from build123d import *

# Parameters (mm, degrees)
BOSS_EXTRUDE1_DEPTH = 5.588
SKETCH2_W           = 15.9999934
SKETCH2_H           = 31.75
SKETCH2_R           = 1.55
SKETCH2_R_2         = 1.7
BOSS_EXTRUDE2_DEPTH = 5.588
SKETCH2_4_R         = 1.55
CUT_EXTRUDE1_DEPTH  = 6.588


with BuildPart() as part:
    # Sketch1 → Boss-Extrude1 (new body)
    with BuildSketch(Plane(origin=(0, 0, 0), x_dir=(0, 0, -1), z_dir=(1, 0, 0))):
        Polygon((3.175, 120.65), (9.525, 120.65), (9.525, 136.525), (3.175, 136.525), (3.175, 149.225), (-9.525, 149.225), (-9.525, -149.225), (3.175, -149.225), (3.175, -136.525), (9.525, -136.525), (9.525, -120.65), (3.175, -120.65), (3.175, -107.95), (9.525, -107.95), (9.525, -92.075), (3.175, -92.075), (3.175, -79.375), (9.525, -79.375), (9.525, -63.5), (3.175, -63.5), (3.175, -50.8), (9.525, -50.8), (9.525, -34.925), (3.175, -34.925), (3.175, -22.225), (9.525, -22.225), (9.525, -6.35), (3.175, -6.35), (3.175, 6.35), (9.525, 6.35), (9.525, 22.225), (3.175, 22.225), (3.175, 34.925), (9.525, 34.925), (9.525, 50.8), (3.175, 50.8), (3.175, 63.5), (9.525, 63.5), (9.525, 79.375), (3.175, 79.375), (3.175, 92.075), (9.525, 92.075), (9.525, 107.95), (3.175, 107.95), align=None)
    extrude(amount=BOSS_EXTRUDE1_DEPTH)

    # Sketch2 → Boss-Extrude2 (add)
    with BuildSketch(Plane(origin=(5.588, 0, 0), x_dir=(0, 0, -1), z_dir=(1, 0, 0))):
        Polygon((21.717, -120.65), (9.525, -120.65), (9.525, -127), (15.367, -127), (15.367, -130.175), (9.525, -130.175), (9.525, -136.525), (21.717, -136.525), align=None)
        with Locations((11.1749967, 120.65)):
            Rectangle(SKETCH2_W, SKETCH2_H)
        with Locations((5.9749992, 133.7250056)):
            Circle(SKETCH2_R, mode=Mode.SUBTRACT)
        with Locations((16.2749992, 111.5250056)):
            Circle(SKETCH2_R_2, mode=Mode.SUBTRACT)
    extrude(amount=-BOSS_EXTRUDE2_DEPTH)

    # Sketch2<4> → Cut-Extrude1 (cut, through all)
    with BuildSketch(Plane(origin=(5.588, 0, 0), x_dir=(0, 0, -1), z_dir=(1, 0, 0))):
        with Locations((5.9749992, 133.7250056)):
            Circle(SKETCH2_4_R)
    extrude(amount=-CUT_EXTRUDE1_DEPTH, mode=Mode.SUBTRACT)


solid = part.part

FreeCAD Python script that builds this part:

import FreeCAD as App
import Part
import Sketcher
Q = App.Units.Quantity

doc = App.newDocument("Part")
params = doc.addObject("Spreadsheet::Sheet", "Params")
for row, (alias, value) in enumerate([
    ("sketch1_width", "0.5 in"),
    ("sketch1_height", "0.25 in"),
    ("pad1_length", "0.22 in"),
    ("sketch2_width", "0.25 in"),
    ("sketch2_width2", "1.25 in"),
    ("sketch2_height", "0.48 in"),
    ("sketch2_height2", "0.23 in"),
    ("sketch2_width3", "0.125 in"),
    ("pad2_length", "0.22 in"),
], start=1):
    params.set(f"A{row}", alias)
    params.set(f"B{row}", "=" + value)
    params.setAlias(f"B{row}", alias)

body = doc.addObject("PartDesign::Body", "Body")

sketch1 = body.newObject("Sketcher::SketchObject", "Sketch")
sketch1.AttachmentSupport = (doc.getObject("YZ_Plane"), [""])
sketch1.MapMode = "FlatFace"
sketch1.addGeometry(Part.LineSegment(App.Vector(121, -3, 0), App.Vector(121, -10, 0)), False)
sketch1.addGeometry(Part.LineSegment(App.Vector(121, -10, 0), App.Vector(137, -10, 0)), False)
sketch1.addGeometry(Part.LineSegment(App.Vector(137, -10, 0), App.Vector(137, -3, 0)), False)
sketch1.addGeometry(Part.LineSegment(App.Vector(137, -3, 0), App.Vector(149, -3, 0)), False)
sketch1.addGeometry(Part.LineSegment(App.Vector(149, -3, 0), App.Vector(149, 10, 0)), False)
sketch1.addGeometry(Part.LineSegment(App.Vector(149, 10, 0), App.Vector(-149, 10, 0)), False)
sketch1.addGeometry(Part.LineSegment(App.Vector(-149, 10, 0), App.Vector(-149, -3, 0)), False)
sketch1.addGeometry(Part.LineSegment(App.Vector(-149, -3, 0), App.Vector(-137, -3, 0)), False)
sketch1.addGeometry(Part.LineSegment(App.Vector(-137, -3, 0), App.Vector(-137, -10, 0)), False)
sketch1.addGeometry(Part.LineSegment(App.Vector(-137, -10, 0), App.Vector(-121, -10, 0)), False)
sketch1.addGeometry(Part.LineSegment(App.Vector(-121, -10, 0), App.Vector(-121, -3, 0)), False)
sketch1.addGeometry(Part.LineSegment(App.Vector(-121, -3, 0), App.Vector(-108, -3, 0)), False)
sketch1.addGeometry(Part.LineSegment(App.Vector(-108, -3, 0), App.Vector(-108, -10, 0)), False)
sketch1.addGeometry(Part.LineSegment(App.Vector(-108, -10, 0), App.Vector(-92, -10, 0)), False)
sketch1.addGeometry(Part.LineSegment(App.Vector(-92, -10, 0), App.Vector(-92, -3, 0)), False)
sketch1.addGeometry(Part.LineSegment(App.Vector(-92, -3, 0), App.Vector(-79, -3, 0)), False)
sketch1.addGeometry(Part.LineSegment(App.Vector(-79, -3, 0), App.Vector(-79, -10, 0)), False)
sketch1.addGeometry(Part.LineSegment(App.Vector(-79, -10, 0), App.Vector(-64, -10, 0)), False)
sketch1.addGeometry(Part.LineSegment(App.Vector(-64, -10, 0), App.Vector(-64, -3, 0)), False)
sketch1.addGeometry(Part.LineSegment(App.Vector(-64, -3, 0), App.Vector(-51, -3, 0)), False)
sketch1.addGeometry(Part.LineSegment(App.Vector(-51, -3, 0), App.Vector(-51, -10, 0)), False)
sketch1.addGeometry(Part.LineSegment(App.Vector(-51, -10, 0), App.Vector(-35, -10, 0)), False)
sketch1.addGeometry(Part.LineSegment(App.Vector(-35, -10, 0), App.Vector(-35, -3, 0)), False)
sketch1.addGeometry(Part.LineSegment(App.Vector(-35, -3, 0), App.Vector(-22, -3, 0)), False)
sketch1.addGeometry(Part.LineSegment(App.Vector(-22, -3, 0), App.Vector(-22, -10, 0)), False)
sketch1.addGeometry(Part.LineSegment(App.Vector(-22, -10, 0), App.Vector(-6, -10, 0)), False)
sketch1.addGeometry(Part.LineSegment(App.Vector(-6, -10, 0), App.Vector(-6, -3, 0)), False)
sketch1.addGeometry(Part.LineSegment(App.Vector(-6, -3, 0), App.Vector(6, -3, 0)), False)
sketch1.addGeometry(Part.LineSegment(App.Vector(6, -3, 0), App.Vector(6, -10, 0)), False)
sketch1.addGeometry(Part.LineSegment(App.Vector(6, -10, 0), App.Vector(22, -10, 0)), False)
sketch1.addGeometry(Part.LineSegment(App.Vector(22, -10, 0), App.Vector(22, -3, 0)), False)
sketch1.addGeometry(Part.LineSegment(App.Vector(22, -3, 0), App.Vector(35, -3, 0)), False)
sketch1.addGeometry(Part.LineSegment(App.Vector(35, -3, 0), App.Vector(35, -10, 0)), False)
sketch1.addGeometry(Part.LineSegment(App.Vector(35, -10, 0), App.Vector(51, -10, 0)), False)
sketch1.addGeometry(Part.LineSegment(App.Vector(51, -10, 0), App.Vector(51, -3, 0)), False)
sketch1.addGeometry(Part.LineSegment(App.Vector(51, -3, 0), App.Vector(64, -3, 0)), False)
sketch1.addGeometry(Part.LineSegment(App.Vector(64, -3, 0), App.Vector(64, -10, 0)), False)
sketch1.addGeometry(Part.LineSegment(App.Vector(64, -10, 0), App.Vector(79, -10, 0)), False)
sketch1.addGeometry(Part.LineSegment(App.Vector(79, -10, 0), App.Vector(79, -3, 0)), False)
sketch1.addGeometry(Part.LineSegment(App.Vector(79, -3, 0), App.Vector(92, -3, 0)), False)
sketch1.addGeometry(Part.LineSegment(App.Vector(92, -3, 0), App.Vector(92, -10, 0)), False)
sketch1.addGeometry(Part.LineSegment(App.Vector(92, -10, 0), App.Vector(108, -10, 0)), False)
sketch1.addGeometry(Part.LineSegment(App.Vector(108, -10, 0), App.Vector(108, -3, 0)), False)
sketch1.addGeometry(Part.LineSegment(App.Vector(108, -3, 0), App.Vector(121, -3, 0)), False)
sketch1.addConstraint(Sketcher.Constraint("Coincident", 0, 2, 1, 1))
sketch1.addConstraint(Sketcher.Constraint("Coincident", 1, 2, 2, 1))
sketch1.addConstraint(Sketcher.Constraint("Coincident", 2, 2, 3, 1))
sketch1.addConstraint(Sketcher.Constraint("Coincident", 3, 2, 4, 1))
sketch1.addConstraint(Sketcher.Constraint("Coincident", 4, 2, 5, 1))
sketch1.addConstraint(Sketcher.Constraint("Coincident", 5, 2, 6, 1))
sketch1.addConstraint(Sketcher.Constraint("Coincident", 6, 2, 7, 1))
sketch1.addConstraint(Sketcher.Constraint("Coincident", 7, 2, 8, 1))
sketch1.addConstraint(Sketcher.Constraint("Coincident", 8, 2, 9, 1))
sketch1.addConstraint(Sketcher.Constraint("Coincident", 9, 2, 10, 1))
sketch1.addConstraint(Sketcher.Constraint("Coincident", 10, 2, 11, 1))
sketch1.addConstraint(Sketcher.Constraint("Coincident", 11, 2, 12, 1))
sketch1.addConstraint(Sketcher.Constraint("Coincident", 12, 2, 13, 1))
sketch1.addConstraint(Sketcher.Constraint("Coincident", 13, 2, 14, 1))
sketch1.addConstraint(Sketcher.Constraint("Coincident", 14, 2, 15, 1))
sketch1.addConstraint(Sketcher.Constraint("Coincident", 15, 2, 16, 1))
sketch1.addConstraint(Sketcher.Constraint("Coincident", 16, 2, 17, 1))
sketch1.addConstraint(Sketcher.Constraint("Coincident", 17, 2, 18, 1))
sketch1.addConstraint(Sketcher.Constraint("Coincident", 18, 2, 19, 1))
sketch1.addConstraint(Sketcher.Constraint("Coincident", 19, 2, 20, 1))
sketch1.addConstraint(Sketcher.Constraint("Coincident", 20, 2, 21, 1))
sketch1.addConstraint(Sketcher.Constraint("Coincident", 21, 2, 22, 1))
sketch1.addConstraint(Sketcher.Constraint("Coincident", 22, 2, 23, 1))
sketch1.addConstraint(Sketcher.Constraint("Coincident", 23, 2, 24, 1))
sketch1.addConstraint(Sketcher.Constraint("Coincident", 24, 2, 25, 1))
sketch1.addConstraint(Sketcher.Constraint("Coincident", 25, 2, 26, 1))
sketch1.addConstraint(Sketcher.Constraint("Coincident", 26, 2, 27, 1))
sketch1.addConstraint(Sketcher.Constraint("Coincident", 27, 2, 28, 1))
sketch1.addConstraint(Sketcher.Constraint("Coincident", 28, 2, 29, 1))
sketch1.addConstraint(Sketcher.Constraint("Coincident", 29, 2, 30, 1))
sketch1.addConstraint(Sketcher.Constraint("Coincident", 30, 2, 31, 1))
sketch1.addConstraint(Sketcher.Constraint("Coincident", 31, 2, 32, 1))
sketch1.addConstraint(Sketcher.Constraint("Coincident", 32, 2, 33, 1))
sketch1.addConstraint(Sketcher.Constraint("Coincident", 33, 2, 34, 1))
sketch1.addConstraint(Sketcher.Constraint("Coincident", 34, 2, 35, 1))
sketch1.addConstraint(Sketcher.Constraint("Coincident", 35, 2, 36, 1))
sketch1.addConstraint(Sketcher.Constraint("Coincident", 36, 2, 37, 1))
sketch1.addConstraint(Sketcher.Constraint("Coincident", 37, 2, 38, 1))
sketch1.addConstraint(Sketcher.Constraint("Coincident", 38, 2, 39, 1))
sketch1.addConstraint(Sketcher.Constraint("Coincident", 39, 2, 40, 1))
sketch1.addConstraint(Sketcher.Constraint("Coincident", 40, 2, 41, 1))
sketch1.addConstraint(Sketcher.Constraint("Coincident", 41, 2, 42, 1))
sketch1.addConstraint(Sketcher.Constraint("Coincident", 42, 2, 43, 1))
sketch1.addConstraint(Sketcher.Constraint("Coincident", 43, 2, 0, 1))
sketch1.addConstraint(Sketcher.Constraint("Vertical", 0))
sketch1.addConstraint(Sketcher.Constraint("Horizontal", 1))
sketch1.addConstraint(Sketcher.Constraint("Vertical", 2))
sketch1.addConstraint(Sketcher.Constraint("Horizontal", 3))
sketch1.addConstraint(Sketcher.Constraint("Vertical", 4))
sketch1.addConstraint(Sketcher.Constraint("Horizontal", 5))
sketch1.addConstraint(Sketcher.Constraint("Vertical", 6))
sketch1.addConstraint(Sketcher.Constraint("Horizontal", 7))
sketch1.addConstraint(Sketcher.Constraint("Vertical", 8))
sketch1.addConstraint(Sketcher.Constraint("Horizontal", 9))
sketch1.addConstraint(Sketcher.Constraint("Vertical", 10))
sketch1.addConstraint(Sketcher.Constraint("Horizontal", 11))
sketch1.addConstraint(Sketcher.Constraint("Vertical", 12))
sketch1.addConstraint(Sketcher.Constraint("Horizontal", 13))
sketch1.addConstraint(Sketcher.Constraint("Vertical", 14))
sketch1.addConstraint(Sketcher.Constraint("Horizontal", 15))
sketch1.addConstraint(Sketcher.Constraint("Vertical", 16))
sketch1.addConstraint(Sketcher.Constraint("Horizontal", 17))
sketch1.addConstraint(Sketcher.Constraint("Vertical", 18))
sketch1.addConstraint(Sketcher.Constraint("Horizontal", 19))
sketch1.addConstraint(Sketcher.Constraint("Vertical", 20))
sketch1.addConstraint(Sketcher.Constraint("Horizontal", 21))
sketch1.addConstraint(Sketcher.Constraint("Vertical", 22))
sketch1.addConstraint(Sketcher.Constraint("Horizontal", 23))
sketch1.addConstraint(Sketcher.Constraint("Vertical", 24))
sketch1.addConstraint(Sketcher.Constraint("Horizontal", 25))
sketch1.addConstraint(Sketcher.Constraint("Vertical", 26))
sketch1.addConstraint(Sketcher.Constraint("Horizontal", 27))
sketch1.addConstraint(Sketcher.Constraint("Vertical", 28))
sketch1.addConstraint(Sketcher.Constraint("Horizontal", 29))
sketch1.addConstraint(Sketcher.Constraint("Vertical", 30))
sketch1.addConstraint(Sketcher.Constraint("Horizontal", 31))
sketch1.addConstraint(Sketcher.Constraint("Vertical", 32))
sketch1.addConstraint(Sketcher.Constraint("Horizontal", 33))
sketch1.addConstraint(Sketcher.Constraint("Vertical", 34))
sketch1.addConstraint(Sketcher.Constraint("Horizontal", 35))
sketch1.addConstraint(Sketcher.Constraint("Vertical", 36))
sketch1.addConstraint(Sketcher.Constraint("Horizontal", 37))
sketch1.addConstraint(Sketcher.Constraint("Vertical", 38))
sketch1.addConstraint(Sketcher.Constraint("Horizontal", 39))
sketch1.addConstraint(Sketcher.Constraint("Vertical", 40))
sketch1.addConstraint(Sketcher.Constraint("Horizontal", 41))
sketch1.addConstraint(Sketcher.Constraint("Vertical", 42))
sketch1.addConstraint(Sketcher.Constraint("Horizontal", 43))
sketch1.addConstraint(Sketcher.Constraint("Symmetric", 3, 2, 6, 2, -2))
sketch1.addConstraint(Sketcher.Constraint("Symmetric", 1, 2, 8, 2, -2))
sketch1.addConstraint(Sketcher.Constraint("Symmetric", 25, 2, 28, 2, -2))
sketch1.addConstraint(Sketcher.Constraint("Symmetric", 23, 2, 30, 2, -2))
sketch1.addConstraint(Sketcher.Constraint("Symmetric", 21, 2, 32, 2, -2))
sketch1.addConstraint(Sketcher.Constraint("Symmetric", 19, 2, 34, 2, -2))
sketch1.addConstraint(Sketcher.Constraint("Symmetric", 17, 2, 36, 2, -2))
sketch1.addConstraint(Sketcher.Constraint("Symmetric", 15, 2, 38, 2, -2))
sketch1.addConstraint(Sketcher.Constraint("Symmetric", 13, 2, 40, 2, -2))
sketch1.addConstraint(Sketcher.Constraint("Symmetric", 11, 2, 42, 2, -2))
sketch1.addConstraint(Sketcher.Constraint("Horizontal", 7, 2, 10, 2))
sketch1.addConstraint(Sketcher.Constraint("Horizontal", 9, 2, 12, 2))
sketch1.addConstraint(Sketcher.Constraint("Horizontal", 11, 2, 14, 2))
sketch1.addConstraint(Sketcher.Constraint("Horizontal", 13, 2, 16, 2))
sketch1.addConstraint(Sketcher.Constraint("Horizontal", 15, 2, 18, 2))
sketch1.addConstraint(Sketcher.Constraint("Horizontal", 17, 2, 20, 2))
sketch1.addConstraint(Sketcher.Constraint("Horizontal", 19, 2, 22, 2))
sketch1.addConstraint(Sketcher.Constraint("Horizontal", 21, 2, 24, 2))
sketch1.addConstraint(Sketcher.Constraint("Horizontal", 23, 2, 26, 2))
sketch1.addConstraint(Sketcher.Constraint("Equal", 1, 9))
sketch1.addConstraint(Sketcher.Constraint("Equal", 7, 11))
sketch1.addConstraint(Sketcher.Constraint("Equal", 9, 13))
sketch1.addConstraint(Sketcher.Constraint("Equal", 11, 15))
sketch1.addConstraint(Sketcher.Constraint("Equal", 13, 17))
sketch1.addConstraint(Sketcher.Constraint("Equal", 15, 19))
sketch1.addConstraint(Sketcher.Constraint("Equal", 17, 21))
sketch1.addConstraint(Sketcher.Constraint("Equal", 19, 23))
sketch1.addConstraint(Sketcher.Constraint("Equal", 21, 25))
sketch1.addConstraint(Sketcher.Constraint("Equal", 23, 27))
sketch1.addConstraint(Sketcher.Constraint("Equal", 43, 4))
sketch1.addConstraint(Sketcher.Constraint("DistanceX", 3, 1, 3, 2, Q("0.5 in")))
sketch1.addConstraint(Sketcher.Constraint("DistanceX", 19, 2, -1, 1, Q("2 in")))
sketch1.addConstraint(Sketcher.Constraint("DistanceY", 0, 2, 0, 1, Q("0.25 in")))
sketch1.addConstraint(Sketcher.Constraint("DistanceY", 0, 2, -1, 1, Q("0.375 in")))
sketch1.setExpression("Constraints[118]", "Params.sketch1_width")
sketch1.setExpression("Constraints[120]", "Params.sketch1_height")
pad1 = body.newObject("PartDesign::Pad", "Pad")
pad1.Profile = sketch1
pad1.setExpression("Length", "Params.pad1_length")

sketch2 = body.newObject("Sketcher::SketchObject", "Sketch001")
sketch2.AttachmentSupport = (doc.getObject("YZ_Plane"), [""])
sketch2.MapMode = "FlatFace"
sketch2.AttachmentOffset = App.Placement(App.Vector(0, 0, 0.22 * 25.4), App.Rotation())
sketch2.addGeometry(Part.LineSegment(App.Vector(-120.7, -21.7, 0), App.Vector(-120.7, -9.5, 0)), False)
sketch2.addGeometry(Part.LineSegment(App.Vector(-120.7, -9.5, 0), App.Vector(-127, -9.5, 0)), False)
sketch2.addGeometry(Part.LineSegment(App.Vector(-127, -9.5, 0), App.Vector(-127, -15.4, 0)), False)
sketch2.addGeometry(Part.LineSegment(App.Vector(-127, -15.4, 0), App.Vector(-130.2, -15.4, 0)), False)
sketch2.addGeometry(Part.LineSegment(App.Vector(-130.2, -15.4, 0), App.Vector(-130.2, -9.5, 0)), False)
sketch2.addGeometry(Part.LineSegment(App.Vector(-130.2, -9.5, 0), App.Vector(-136.5, -9.5, 0)), False)
sketch2.addGeometry(Part.LineSegment(App.Vector(-136.5, -9.5, 0), App.Vector(-136.5, -21.7, 0)), False)
sketch2.addGeometry(Part.LineSegment(App.Vector(-136.5, -21.7, 0), App.Vector(-120.7, -21.7, 0)), False)
sketch2.addGeometry(Part.LineSegment(App.Vector(136.5, -3.2, 0), App.Vector(104.8, -3.2, 0)), False)
sketch2.addGeometry(Part.LineSegment(App.Vector(104.8, -3.2, 0), App.Vector(104.8, -19.2, 0)), False)
sketch2.addGeometry(Part.LineSegment(App.Vector(104.8, -19.2, 0), App.Vector(136.5, -19.2, 0)), False)
sketch2.addGeometry(Part.LineSegment(App.Vector(136.5, -19.2, 0), App.Vector(136.5, -3.2, 0)), False)
sketch2.addGeometry(Part.Circle(App.Vector(111.5, -16.3, 0), App.Vector(0, 0, 1), 1.7), False)
sketch2.addGeometry(Part.Circle(App.Vector(133.7, -6, 0), App.Vector(0, 0, 1), 1.6), False)
sketch2.addConstraint(Sketcher.Constraint("Coincident", 0, 2, 1, 1))
sketch2.addConstraint(Sketcher.Constraint("Coincident", 1, 2, 2, 1))
sketch2.addConstraint(Sketcher.Constraint("Coincident", 2, 2, 3, 1))
sketch2.addConstraint(Sketcher.Constraint("Coincident", 3, 2, 4, 1))
sketch2.addConstraint(Sketcher.Constraint("Coincident", 4, 2, 5, 1))
sketch2.addConstraint(Sketcher.Constraint("Coincident", 5, 2, 6, 1))
sketch2.addConstraint(Sketcher.Constraint("Coincident", 6, 2, 7, 1))
sketch2.addConstraint(Sketcher.Constraint("Coincident", 7, 2, 0, 1))
sketch2.addConstraint(Sketcher.Constraint("Coincident", 8, 2, 9, 1))
sketch2.addConstraint(Sketcher.Constraint("Coincident", 9, 2, 10, 1))
sketch2.addConstraint(Sketcher.Constraint("Coincident", 10, 2, 11, 1))
sketch2.addConstraint(Sketcher.Constraint("Coincident", 11, 2, 8, 1))
sketch2.addConstraint(Sketcher.Constraint("Vertical", 0))
sketch2.addConstraint(Sketcher.Constraint("Horizontal", 1))
sketch2.addConstraint(Sketcher.Constraint("Vertical", 2))
sketch2.addConstraint(Sketcher.Constraint("Horizontal", 3))
sketch2.addConstraint(Sketcher.Constraint("Vertical", 4))
sketch2.addConstraint(Sketcher.Constraint("Horizontal", 5))
sketch2.addConstraint(Sketcher.Constraint("Vertical", 6))
sketch2.addConstraint(Sketcher.Constraint("Horizontal", 7))
sketch2.addConstraint(Sketcher.Constraint("Horizontal", 8))
sketch2.addConstraint(Sketcher.Constraint("Vertical", 9))
sketch2.addConstraint(Sketcher.Constraint("Horizontal", 10))
sketch2.addConstraint(Sketcher.Constraint("Vertical", 11))
sketch2.addConstraint(Sketcher.Constraint("Horizontal", 1, 2, 4, 2))
sketch2.addConstraint(Sketcher.Constraint("Equal", 1, 5))
sketch2.addConstraint(Sketcher.Constraint("DistanceX", 1, 2, -1, 1, Q("5 in")))
sketch2.addConstraint(Sketcher.Constraint("DistanceX", 1, 2, 1, 1, Q("0.25 in")))
sketch2.addConstraint(Sketcher.Constraint("DistanceX", 8, 2, 8, 1, Q("1.25 in")))
sketch2.addConstraint(Sketcher.Constraint("DistanceY", 0, 1, 0, 2, Q("0.48 in")))
sketch2.addConstraint(Sketcher.Constraint("DistanceY", 2, 2, 2, 1, Q("0.23 in")))
sketch2.addConstraint(Sketcher.Constraint("Diameter", 12, 3.4))
sketch2.addConstraint(Sketcher.Constraint("Diameter", 13, 3.1))
sketch2.addConstraint(Sketcher.Constraint("DistanceX", 3, 2, 3, 1, Q("0.125 in")))
sketch2.addConstraint(Sketcher.Constraint("DistanceY", 0, 2, 8, 2, Q("0.25 in")))
sketch2.addConstraint(Sketcher.Constraint("DistanceY", 0, 2, -1, 1, Q("0.375 in")))
sketch2.addConstraint(Sketcher.Constraint("DistanceX", -1, 1, 8, 2, Q("4.125 in")))
sketch2.addConstraint(Sketcher.Constraint("DistanceY", 12, 3, -1, 1, 16.274999))
sketch2.addConstraint(Sketcher.Constraint("DistanceY", 13, 3, -1, 1, 5.974999))
sketch2.addConstraint(Sketcher.Constraint("DistanceX", 12, 3, 13, 3, 22.2))
sketch2.addConstraint(Sketcher.Constraint("DistanceY", 9, 2, 9, 1, 15.999993))
sketch2.addConstraint(Sketcher.Constraint("DistanceX", -1, 1, 12, 3, 111.525006))
sketch2.setExpression("Constraints[27]", "Params.sketch2_width")
sketch2.setExpression("Constraints[28]", "Params.sketch2_width2")
sketch2.setExpression("Constraints[29]", "Params.sketch2_height")
sketch2.setExpression("Constraints[30]", "Params.sketch2_height2")
sketch2.setExpression("Constraints[33]", "Params.sketch2_width3")
pad2 = body.newObject("PartDesign::Pad", "Pad001")
pad2.Profile = sketch2
pad2.setExpression("Length", "Params.pad2_length")
pad2.Reversed = True

sketch3 = body.newObject("Sketcher::SketchObject", "Sketch002")
sketch3.AttachmentSupport = (doc.getObject("YZ_Plane"), [""])
sketch3.MapMode = "FlatFace"
sketch3.AttachmentOffset = App.Placement(App.Vector(0, 0, 0.22 * 25.4), App.Rotation())
sketch3.addGeometry(Part.Circle(App.Vector(133.7, -6, 0), App.Vector(0, 0, 1), 1.6), False)
sketch3.addConstraint(Sketcher.Constraint("Diameter", 0, 3.1))
sketch3.addConstraint(Sketcher.Constraint("DistanceY", 0, 3, -1, 1, 5.974999))
sketch3.addConstraint(Sketcher.Constraint("DistanceX", -1, 1, 0, 3, 133.725006))
pocket1 = body.newObject("PartDesign::Pocket", "Pocket")
pocket1.Profile = sketch3
pocket1.Type = "ThroughAll"

doc.recompute()
